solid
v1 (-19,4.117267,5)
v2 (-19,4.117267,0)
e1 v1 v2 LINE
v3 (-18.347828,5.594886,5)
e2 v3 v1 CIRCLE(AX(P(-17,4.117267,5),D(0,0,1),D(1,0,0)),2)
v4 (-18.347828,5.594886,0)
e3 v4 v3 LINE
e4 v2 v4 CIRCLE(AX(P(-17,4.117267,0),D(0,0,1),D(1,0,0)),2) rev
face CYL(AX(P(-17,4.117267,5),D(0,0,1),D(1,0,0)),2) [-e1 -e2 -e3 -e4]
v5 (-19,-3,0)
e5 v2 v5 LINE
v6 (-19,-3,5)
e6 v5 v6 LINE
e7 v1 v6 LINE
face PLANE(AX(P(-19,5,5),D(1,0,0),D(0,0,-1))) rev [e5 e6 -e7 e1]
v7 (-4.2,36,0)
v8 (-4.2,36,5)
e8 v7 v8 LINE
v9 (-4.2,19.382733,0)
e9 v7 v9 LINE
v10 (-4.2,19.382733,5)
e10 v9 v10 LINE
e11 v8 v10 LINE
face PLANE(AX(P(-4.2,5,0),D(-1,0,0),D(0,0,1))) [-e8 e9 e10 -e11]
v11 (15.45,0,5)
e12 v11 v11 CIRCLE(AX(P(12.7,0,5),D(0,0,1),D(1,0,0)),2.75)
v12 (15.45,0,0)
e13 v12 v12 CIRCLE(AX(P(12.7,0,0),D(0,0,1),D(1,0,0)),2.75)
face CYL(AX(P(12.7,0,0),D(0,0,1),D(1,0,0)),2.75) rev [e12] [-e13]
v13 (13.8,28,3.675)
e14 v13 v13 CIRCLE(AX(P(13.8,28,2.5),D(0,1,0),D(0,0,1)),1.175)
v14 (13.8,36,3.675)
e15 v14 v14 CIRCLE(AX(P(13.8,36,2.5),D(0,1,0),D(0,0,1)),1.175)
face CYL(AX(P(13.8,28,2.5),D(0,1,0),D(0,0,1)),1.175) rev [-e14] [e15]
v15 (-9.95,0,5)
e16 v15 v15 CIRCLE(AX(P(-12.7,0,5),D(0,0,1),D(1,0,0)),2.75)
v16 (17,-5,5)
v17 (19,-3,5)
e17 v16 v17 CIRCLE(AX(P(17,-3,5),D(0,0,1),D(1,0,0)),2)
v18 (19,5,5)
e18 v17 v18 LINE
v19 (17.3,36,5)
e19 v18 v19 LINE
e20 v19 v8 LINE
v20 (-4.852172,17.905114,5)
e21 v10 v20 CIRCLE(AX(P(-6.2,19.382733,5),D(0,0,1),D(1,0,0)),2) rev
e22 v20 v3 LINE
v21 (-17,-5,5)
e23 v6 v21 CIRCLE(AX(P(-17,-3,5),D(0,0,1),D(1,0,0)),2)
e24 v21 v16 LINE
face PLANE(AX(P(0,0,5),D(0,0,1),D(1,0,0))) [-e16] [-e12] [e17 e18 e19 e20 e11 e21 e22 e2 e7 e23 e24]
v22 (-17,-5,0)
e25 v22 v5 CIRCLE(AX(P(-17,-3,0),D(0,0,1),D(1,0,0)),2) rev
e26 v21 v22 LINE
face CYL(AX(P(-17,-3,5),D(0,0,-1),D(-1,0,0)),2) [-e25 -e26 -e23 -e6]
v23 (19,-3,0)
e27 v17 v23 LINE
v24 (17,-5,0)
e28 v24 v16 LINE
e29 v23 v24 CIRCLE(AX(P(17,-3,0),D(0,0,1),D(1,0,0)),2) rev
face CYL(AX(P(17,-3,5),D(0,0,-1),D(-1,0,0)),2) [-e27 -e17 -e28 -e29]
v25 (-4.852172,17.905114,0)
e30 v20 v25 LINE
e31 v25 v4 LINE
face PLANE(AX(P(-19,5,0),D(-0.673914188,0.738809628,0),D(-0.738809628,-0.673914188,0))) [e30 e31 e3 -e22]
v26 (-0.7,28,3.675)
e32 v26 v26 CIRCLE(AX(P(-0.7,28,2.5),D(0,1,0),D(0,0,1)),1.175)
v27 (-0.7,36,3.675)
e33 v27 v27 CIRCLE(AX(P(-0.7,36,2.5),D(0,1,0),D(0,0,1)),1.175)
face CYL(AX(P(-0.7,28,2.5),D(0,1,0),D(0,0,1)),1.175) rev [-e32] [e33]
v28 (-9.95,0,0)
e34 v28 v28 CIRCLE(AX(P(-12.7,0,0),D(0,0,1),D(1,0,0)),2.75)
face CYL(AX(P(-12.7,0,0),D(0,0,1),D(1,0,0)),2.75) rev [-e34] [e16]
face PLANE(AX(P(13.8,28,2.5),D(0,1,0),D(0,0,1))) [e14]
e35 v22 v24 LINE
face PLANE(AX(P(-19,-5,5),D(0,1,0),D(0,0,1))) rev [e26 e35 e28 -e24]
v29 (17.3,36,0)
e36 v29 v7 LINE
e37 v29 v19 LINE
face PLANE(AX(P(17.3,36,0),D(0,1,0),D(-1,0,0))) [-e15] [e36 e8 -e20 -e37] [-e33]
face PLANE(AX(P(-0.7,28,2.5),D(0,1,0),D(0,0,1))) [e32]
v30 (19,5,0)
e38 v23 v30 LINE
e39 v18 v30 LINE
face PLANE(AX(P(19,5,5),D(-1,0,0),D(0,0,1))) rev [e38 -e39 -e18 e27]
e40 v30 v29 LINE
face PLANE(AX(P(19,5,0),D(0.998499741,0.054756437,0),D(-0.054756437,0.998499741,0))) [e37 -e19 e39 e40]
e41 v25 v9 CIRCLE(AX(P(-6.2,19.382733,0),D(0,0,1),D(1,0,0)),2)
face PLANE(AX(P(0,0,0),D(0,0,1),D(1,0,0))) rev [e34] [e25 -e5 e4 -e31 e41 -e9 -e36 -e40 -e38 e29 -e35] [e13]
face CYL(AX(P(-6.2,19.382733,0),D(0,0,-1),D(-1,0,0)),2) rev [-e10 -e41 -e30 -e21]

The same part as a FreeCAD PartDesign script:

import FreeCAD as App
import Part
import Sketcher
from FreeCAD import Vector
Q = App.Units.Quantity


def edges_at(feature, points):
    """Names of the edges that pass closest to the given points."""
    edges = feature.Shape.Edges
    near = lambda p: min(range(len(edges)), key=lambda i: edges[i].distToShape(Part.Vertex(*p))[0])
    return sorted({f"Edge{near(p) + 1}" for p in points})

doc = App.newDocument("Part")
params = doc.addObject("Spreadsheet::Sheet", "Params")
for row, (alias, value) in enumerate([
    ("sketch1_width", "38 mm"),
    ("sketch1_height", "10 mm"),
    ("pad1_length", "5 mm"),
    ("sketch2_diameter", "5.5 mm"),
    ("pocket1_length", "5 mm"),
    ("sketch3_height", "31 mm"),
    ("sketch3_width", "21.5 mm"),
    ("pad2_length", "5 mm"),
    ("sketch4_width", "14.8 mm"),
    ("sketch4_height", "13.5 mm"),
    ("pad3_length", "5 mm"),
    ("sketch5_diameter", "2.35 mm"),
    ("pocket2_length", "8 mm"),
    ("fillet_radius", "2 mm"),
    ("sketch6_height", "31 mm"),
    ("sketch6_width", "1.7 mm"),
    ("pad4_length", "5 mm"),
], start=1):
    params.set(f"A{row}", alias)
    params.set(f"B{row}", "=" + value)
    params.setAlias(f"B{row}", alias)

body = doc.addObject("PartDesign::Body", "Body")

# Sketch on XY plane
sketch1 = doc.addObject("Sketcher::SketchObject", "Sketch")
body.addObject(sketch1)
sketch1.AttachmentSupport = (doc.XY_Plane, [""])
sketch1.MapMode = "FlatFace"
sketch1.addGeometry(Part.LineSegment(Vector(-19, 5, 0), Vector(-19, -5, 0)), False)
sketch1.addGeometry(Part.LineSegment(Vector(-19, -5, 0), Vector(19, -5, 0)), False)
sketch1.addGeometry(Part.LineSegment(Vector(19, -5, 0), Vector(19, 5, 0)), False)
sketch1.addGeometry(Part.LineSegment(Vector(19, 5, 0), Vector(-19, 5, 0)), False)
sketch1.addConstraint(Sketcher.Constraint("Coincident", 0, 2, 1, 1))
sketch1.addConstraint(Sketcher.Constraint("Coincident", 1, 2, 2, 1))
sketch1.addConstraint(Sketcher.Constraint("Coincident", 2, 2, 3, 1))
sketch1.addConstraint(Sketcher.Constraint("Coincident", 3, 2, 0, 1))
sketch1.addConstraint(Sketcher.Constraint("Vertical", 0))
sketch1.addConstraint(Sketcher.Constraint("Horizontal", 1))
sketch1.addConstraint(Sketcher.Constraint("Vertical", 2))
sketch1.addConstraint(Sketcher.Constraint("Horizontal", 3))
sketch1.addConstraint(Sketcher.Constraint("Symmetric", 0, 2, 2, 2, -1, 1))
sketch1.addConstraint(Sketcher.Constraint("DistanceX", 1, 1, 1, 2, Q("38 mm")))
sketch1.addConstraint(Sketcher.Constraint("DistanceY", 0, 2, 0, 1, Q("10 mm")))
sketch1.setExpression("Constraints[9]", "Params.sketch1_width")
sketch1.setExpression("Constraints[10]", "Params.sketch1_height")
pad1 = doc.addObject("PartDesign::Pad", "Pad")
body.addObject(pad1)
pad1.Profile = sketch1
pad1.setExpression("Length", "Params.pad1_length")

# Sketch on XY plane
sketch2 = doc.addObject("Sketcher::SketchObject", "Sketch001")
body.addObject(sketch2)
sketch2.AttachmentSupport = (doc.XY_Plane, [""])
sketch2.MapMode = "FlatFace"
sketch2.AttachmentOffset = App.Placement(Vector(0, 0, 5), App.Rotation())
sketch2.addGeometry(Part.Circle(Vector(-12.7, 0, 0), Vector(0, 0, 1), 2.75), False)
sketch2.addGeometry(Part.Circle(Vector(12.7, 0, 0), Vector(0, 0, 1), 2.75), False)
sketch2.addConstraint(Sketcher.Constraint("Equal", 0, 1))
sketch2.addConstraint(Sketcher.Constraint("Symmetric", 0, 3, 1, 3, -1, 1))
sketch2.addConstraint(Sketcher.Constraint("PointOnObject", 0, 3, -1))
sketch2.addConstraint(Sketcher.Constraint("Diameter", 0, Q("5.5 mm")))
sketch2.addConstraint(Sketcher.Constraint("DistanceX", 0, 3, -1, 1, Q("12.7 mm")))
sketch2.setExpression("Constraints[3]", "Params.sketch2_diameter")
pocket1 = doc.addObject("PartDesign::Pocket", "Pocket")
body.addObject(pocket1)
pocket1.Profile = sketch2
pocket1.setExpression("Length", "Params.pocket1_length")

# Sketch on XY plane
sketch3 = doc.addObject("Sketcher::SketchObject", "Sketch002")
body.addObject(sketch3)
sketch3.AttachmentSupport = (doc.XY_Plane, [""])
sketch3.MapMode = "FlatFace"
sketch3.AttachmentOffset = App.Placement(Vector(0, 0, 5), App.Rotation())
sketch3.addGeometry(Part.LineSegment(Vector(-4.2, 36, 0), Vector(-4.2, 5, 0)), False)
sketch3.addGeometry(Part.LineSegment(Vector(-4.2, 5, 0), Vector(17.3, 5, 0)), False)
sketch3.addGeometry(Part.LineSegment(Vector(17.3, 5, 0), Vector(17.3, 36, 0)), False)
sketch3.addGeometry(Part.LineSegment(Vector(17.3, 36, 0), Vector(-4.2, 36, 0)), False)
sketch3.addConstraint(Sketcher.Constraint("Coincident", 0, 2, 1, 1))
sketch3.addConstraint(Sketcher.Constraint("Coincident", 1, 2, 2, 1))
sketch3.addConstraint(Sketcher.Constraint("Coincident", 2, 2, 3, 1))
sketch3.addConstraint(Sketcher.Constraint("Coincident", 3, 2, 0, 1))
sketch3.addConstraint(Sketcher.Constraint("Vertical", 0))
sketch3.addConstraint(Sketcher.Constraint("Horizontal", 1))
sketch3.addConstraint(Sketcher.Constraint("Vertical", 2))
sketch3.addConstraint(Sketcher.Constraint("Horizontal", 3))
sketch3.addConstraint(Sketcher.Constraint("DistanceY", 0, 2, 0, 1, Q("31 mm")))
sketch3.addConstraint(Sketcher.Constraint("DistanceX", 1, 1, 1, 2, Q("21.5 mm")))
sketch3.addConstraint(Sketcher.Constraint("DistanceY", -1, 1, 0, 2, Q("5 mm")))
sketch3.addConstraint(Sketcher.Constraint("DistanceX", 0, 2, -1, 1, Q("4.2 mm")))
sketch3.setExpression("Constraints[8]", "Params.sketch3_height")
sketch3.setExpression("Constraints[9]", "Params.sketch3_width")
pad2 = doc.addObject("PartDesign::Pad", "Pad001")
body.addObject(pad2)
pad2.Profile = sketch3
pad2.setExpression("Length", "Params.pad2_length")
pad2.Reversed = True

# Sketch on XY plane
sketch4 = doc.addObject("Sketcher::SketchObject", "Sketch003")
body.addObject(sketch4)
sketch4.AttachmentSupport = (doc.XY_Plane, [""])
sketch4.MapMode = "FlatFace"
sketch4.AttachmentOffset = App.Placement(Vector(0, 0, 5), App.Rotation())
sketch4.addGeometry(Part.LineSegment(Vector(-19, 5, 0), Vector(-4.2, 5, 0)), False)
sketch4.addGeometry(Part.LineSegment(Vector(-4.2, 5, 0), Vector(-4.2, 18.5, 0)), False)
sketch4.addGeometry(Part.LineSegment(Vector(-4.2, 18.5, 0), Vector(-19, 5, 0)), False)
sketch4.addConstraint(Sketcher.Constraint("Coincident", 0, 2, 1, 1))
sketch4.addConstraint(Sketcher.Constraint("Coincident", 1, 2, 2, 1))
sketch4.addConstraint(Sketcher.Constraint("Coincident", 2, 2, 0, 1))
sketch4.addConstraint(Sketcher.Constraint("Horizontal", 0))
sketch4.addConstraint(Sketcher.Constraint("Vertical", 1))
sketch4.addConstraint(Sketcher.Constraint("DistanceX", 0, 1, 0, 2, Q("14.8 mm")))
sketch4.addConstraint(Sketcher.Constraint("DistanceY", 1, 1, 1, 2, Q("13.5 mm")))
sketch4.addConstraint(Sketcher.Constraint("DistanceY", -1, 1, 0, 2, Q("5 mm")))
sketch4.addConstraint(Sketcher.Constraint("DistanceX", 2, 2, -1, 1, Q("19 mm")))
sketch4.setExpression("Constraints[5]", "Params.sketch4_width")
sketch4.setExpression("Constraints[6]", "Params.sketch4_height")
pad3 = doc.addObject("PartDesign::Pad", "Pad002")
body.addObject(pad3)
pad3.Profile = sketch4
pad3.setExpression("Length", "Params.pad3_length")
pad3.Reversed = True

# Sketch on XZ plane
sketch5 = doc.addObject("Sketcher::SketchObject", "Sketch004")
body.addObject(sketch5)
sketch5.AttachmentSupport = (doc.XZ_Plane, [""])
sketch5.MapMode = "FlatFace"
sketch5.AttachmentOffset = App.Placement(Vector(0, 0, -36), App.Rotation())
sketch5.addGeometry(Part.Circle(Vector(-0.7, 2.5, 0), Vector(0, 0, 1), 1.175), False)
sketch5.addGeometry(Part.Circle(Vector(13.8, 2.5, 0), Vector(0, 0, 1), 1.175), False)
sketch5.addConstraint(Sketcher.Constraint("Equal", 0, 1))
sketch5.addConstraint(Sketcher.Constraint("Horizontal", 0, 3, 1, 3))
sketch5.addConstraint(Sketcher.Constraint("Diameter", 0, Q("2.35 mm")))
sketch5.addConstraint(Sketcher.Constraint("DistanceX", 0, 3, -1, 1, Q("0.7 mm")))
sketch5.addConstraint(Sketcher.Constraint("DistanceY", -1, 1, 0, 3, Q("2.5 mm")))
sketch5.addConstraint(Sketcher.Constraint("DistanceX", -1, 1, 1, 3, Q("13.8 mm")))
sketch5.setExpression("Constraints[2]", "Params.sketch5_diameter")
pocket2 = doc.addObject("PartDesign::Pocket", "Pocket001")
body.addObject(pocket2)
pocket2.Profile = sketch5
pocket2.setExpression("Length", "Params.pocket2_length")
pocket2.Reversed = True
doc.recompute()

fillet = doc.addObject("PartDesign::Fillet", "Fillet")
body.addObject(fillet)
fillet.Base = (pocket2, edges_at(pocket2, [
    (-4.2, 18.5, 2.5),
    (19, -5, 2.5),
    (-19, -5, 2.5),
    (-19, 5, 2.5),
]))
fillet.setExpression("Radius", "Params.fillet_radius")

# Sketch on XY plane
sketch6 = doc.addObject("Sketcher::SketchObject", "Sketch005")
body.addObject(sketch6)
sketch6.AttachmentSupport = (doc.XY_Plane, [""])
sketch6.MapMode = "FlatFace"
sketch6.AttachmentOffset = App.Placement(Vector(0, 0, 5), App.Rotation())
sketch6.addGeometry(Part.LineSegment(Vector(19, 5, 0), Vector(17.3, 36, 0)), False)
sketch6.addGeometry(Part.LineSegment(Vector(17.3, 36, 0), Vector(17.3, 5, 0)), False)
sketch6.addGeometry(Part.LineSegment(Vector(17.3, 5, 0), Vector(19, 5, 0)), False)
sketch6.addConstraint(Sketcher.Constraint("Coincident", 0, 2, 1, 1))
sketch6.addConstraint(Sketcher.Constraint("Coincident", 1, 2, 2, 1))
sketch6.addConstraint(Sketcher.Constraint("Coincident", 2, 2, 0, 1))
sketch6.addConstraint(Sketcher.Constraint("Vertical", 1))
sketch6.addConstraint(Sketcher.Constraint("Horizontal", 2))
sketch6.addConstraint(Sketcher.Constraint("DistanceY", 1, 2, 1, 1, Q("31 mm")))
sketch6.addConstraint(Sketcher.Constraint("DistanceX", 2, 1, 2, 2, Q("1.7 mm")))
sketch6.addConstraint(Sketcher.Constraint("DistanceY", -1, 1, 0, 2, Q("36 mm")))
sketch6.addConstraint(Sketcher.Constraint("DistanceX", -1, 1, 2, 2, Q("19 mm")))
sketch6.setExpression("Constraints[5]", "Params.sketch6_height")
sketch6.setExpression("Constraints[6]", "Params.sketch6_width")
pad4 = doc.addObject("PartDesign::Pad", "Pad003")
body.addObject(pad4)
pad4.Profile = sketch6
pad4.setExpression("Length", "Params.pad4_length")
pad4.Reversed = True

doc.recompute()
